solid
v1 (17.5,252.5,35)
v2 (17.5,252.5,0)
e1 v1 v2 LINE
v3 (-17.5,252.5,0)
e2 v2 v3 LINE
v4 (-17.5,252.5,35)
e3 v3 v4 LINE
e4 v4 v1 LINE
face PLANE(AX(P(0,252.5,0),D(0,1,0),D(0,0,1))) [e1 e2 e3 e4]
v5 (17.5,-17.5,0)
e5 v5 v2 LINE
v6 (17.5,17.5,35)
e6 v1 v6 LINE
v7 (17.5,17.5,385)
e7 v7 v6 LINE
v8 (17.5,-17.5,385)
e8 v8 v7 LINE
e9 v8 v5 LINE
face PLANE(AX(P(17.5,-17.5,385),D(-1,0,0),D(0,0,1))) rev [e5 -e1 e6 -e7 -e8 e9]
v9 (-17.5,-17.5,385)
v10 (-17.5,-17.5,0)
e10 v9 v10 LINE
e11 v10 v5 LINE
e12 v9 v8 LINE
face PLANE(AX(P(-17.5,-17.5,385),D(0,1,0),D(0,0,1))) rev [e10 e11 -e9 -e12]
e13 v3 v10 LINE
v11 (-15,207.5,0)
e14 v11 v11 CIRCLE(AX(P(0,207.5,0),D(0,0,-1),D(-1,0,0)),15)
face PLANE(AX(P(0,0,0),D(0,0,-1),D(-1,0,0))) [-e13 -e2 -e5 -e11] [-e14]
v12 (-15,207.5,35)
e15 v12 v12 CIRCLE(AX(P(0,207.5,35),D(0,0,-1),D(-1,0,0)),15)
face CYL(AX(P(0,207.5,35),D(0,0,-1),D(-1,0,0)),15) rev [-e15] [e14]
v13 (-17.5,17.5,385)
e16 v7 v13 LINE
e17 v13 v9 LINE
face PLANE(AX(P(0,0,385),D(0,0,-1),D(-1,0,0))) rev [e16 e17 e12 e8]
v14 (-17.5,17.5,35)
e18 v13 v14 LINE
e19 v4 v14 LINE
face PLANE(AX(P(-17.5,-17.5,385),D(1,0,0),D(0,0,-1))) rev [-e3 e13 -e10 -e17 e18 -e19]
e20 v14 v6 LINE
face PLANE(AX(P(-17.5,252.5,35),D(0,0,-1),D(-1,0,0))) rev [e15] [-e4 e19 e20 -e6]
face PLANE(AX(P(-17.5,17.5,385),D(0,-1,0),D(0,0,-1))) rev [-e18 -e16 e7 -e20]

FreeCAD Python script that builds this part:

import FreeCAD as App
import Part
import Sketcher
from FreeCAD import Vector


def add_polygon(sketch, points):
    """Adds a closed chain of lines whose ends are joined by coincident constraints."""
    first, n = sketch.GeometryCount, len(points)
    for a, b in zip(points, points[1:] + points[:1]):
        sketch.addGeometry(Part.LineSegment(App.Vector(*a, 0), App.Vector(*b, 0)), False)
    for i in range(n):
        sketch.addConstraint(Sketcher.Constraint("Coincident", first + i, 2, first + (i + 1) % n, 1))

doc = App.newDocument("Part")
body = doc.addObject("PartDesign::Body", "Body")

sketch1 = doc.addObject("Sketcher::SketchObject", "Sketch")
body.addObject(sketch1)
sketch1.AttachmentSupport = (doc.XY_Plane, [""])
sketch1.MapMode = "FlatFace"
add_polygon(sketch1, [(-17.5, 17.5), (-17.5, -17.5), (17.5, -17.5), (17.5, 17.5)])
sketch1.addConstraint([
    Sketcher.Constraint("Vertical", 0),
    Sketcher.Constraint("Horizontal", 1),
    Sketcher.Constraint("Vertical", 2),
    Sketcher.Constraint("Horizontal", 3),
    Sketcher.Constraint("Symmetric", 0, 2, 2, 2, -1, 1),
    Sketcher.Constraint("Equal", 3, 0),
    Sketcher.Constraint("DistanceX", 1, 1, 1, 2, 35.0),
])
pad1 = doc.addObject("PartDesign::Pad", "Pad")
body.addObject(pad1)
pad1.Profile = sketch1
pad1.Length = 385

sketch2 = doc.addObject("Sketcher::SketchObject", "Sketch001")
body.addObject(sketch2)
sketch2.AttachmentSupport = (doc.XZ_Plane, [""])
sketch2.MapMode = "FlatFace"
sketch2.AttachmentOffset = App.Placement(Vector(0, 0, -17.5), App.Rotation())
add_polygon(sketch2, [(-17.5, 0), (-17.5, 35), (17.5, 35), (17.5, 0)])
sketch2.addConstraint([
    Sketcher.Constraint("Vertical", 0),
    Sketcher.Constraint("Horizontal", 1),
    Sketcher.Constraint("Vertical", 2),
    Sketcher.Constraint("Horizontal", 3),
    Sketcher.Constraint("Symmetric", 2, 2, 3, 2, -1, 1),
    Sketcher.Constraint("Equal", 3, 0),
    Sketcher.Constraint("DistanceX", 1, 1, 1, 2, 35.0),
])
pad2 = doc.addObject("PartDesign::Pad", "Pad001")
body.addObject(pad2)
pad2.Profile = sketch2
pad2.Length = 235
pad2.Reversed = True

sketch3 = doc.addObject("Sketcher::SketchObject", "Sketch002")
body.addObject(sketch3)
sketch3.AttachmentSupport = (doc.XY_Plane, [""])
sketch3.MapMode = "FlatFace"
sketch3.addGeometry(Part.Circle(Vector(0, 207.5, 0), Vector(0, 0, 1), 15), False)
sketch3.addConstraint([
    Sketcher.Constraint("PointOnObject", 0, 3, -2),
    Sketcher.Constraint("Diameter", 0, 30.0),
    Sketcher.Constraint("DistanceY", -1, 1, 0, 3, 207.5),
])
pocket1 = doc.addObject("PartDesign::Pocket", "Pocket")
body.addObject(pocket1)
pocket1.Profile = sketch3
pocket1.Length = 35
pocket1.Reversed = True

doc.recompute()
